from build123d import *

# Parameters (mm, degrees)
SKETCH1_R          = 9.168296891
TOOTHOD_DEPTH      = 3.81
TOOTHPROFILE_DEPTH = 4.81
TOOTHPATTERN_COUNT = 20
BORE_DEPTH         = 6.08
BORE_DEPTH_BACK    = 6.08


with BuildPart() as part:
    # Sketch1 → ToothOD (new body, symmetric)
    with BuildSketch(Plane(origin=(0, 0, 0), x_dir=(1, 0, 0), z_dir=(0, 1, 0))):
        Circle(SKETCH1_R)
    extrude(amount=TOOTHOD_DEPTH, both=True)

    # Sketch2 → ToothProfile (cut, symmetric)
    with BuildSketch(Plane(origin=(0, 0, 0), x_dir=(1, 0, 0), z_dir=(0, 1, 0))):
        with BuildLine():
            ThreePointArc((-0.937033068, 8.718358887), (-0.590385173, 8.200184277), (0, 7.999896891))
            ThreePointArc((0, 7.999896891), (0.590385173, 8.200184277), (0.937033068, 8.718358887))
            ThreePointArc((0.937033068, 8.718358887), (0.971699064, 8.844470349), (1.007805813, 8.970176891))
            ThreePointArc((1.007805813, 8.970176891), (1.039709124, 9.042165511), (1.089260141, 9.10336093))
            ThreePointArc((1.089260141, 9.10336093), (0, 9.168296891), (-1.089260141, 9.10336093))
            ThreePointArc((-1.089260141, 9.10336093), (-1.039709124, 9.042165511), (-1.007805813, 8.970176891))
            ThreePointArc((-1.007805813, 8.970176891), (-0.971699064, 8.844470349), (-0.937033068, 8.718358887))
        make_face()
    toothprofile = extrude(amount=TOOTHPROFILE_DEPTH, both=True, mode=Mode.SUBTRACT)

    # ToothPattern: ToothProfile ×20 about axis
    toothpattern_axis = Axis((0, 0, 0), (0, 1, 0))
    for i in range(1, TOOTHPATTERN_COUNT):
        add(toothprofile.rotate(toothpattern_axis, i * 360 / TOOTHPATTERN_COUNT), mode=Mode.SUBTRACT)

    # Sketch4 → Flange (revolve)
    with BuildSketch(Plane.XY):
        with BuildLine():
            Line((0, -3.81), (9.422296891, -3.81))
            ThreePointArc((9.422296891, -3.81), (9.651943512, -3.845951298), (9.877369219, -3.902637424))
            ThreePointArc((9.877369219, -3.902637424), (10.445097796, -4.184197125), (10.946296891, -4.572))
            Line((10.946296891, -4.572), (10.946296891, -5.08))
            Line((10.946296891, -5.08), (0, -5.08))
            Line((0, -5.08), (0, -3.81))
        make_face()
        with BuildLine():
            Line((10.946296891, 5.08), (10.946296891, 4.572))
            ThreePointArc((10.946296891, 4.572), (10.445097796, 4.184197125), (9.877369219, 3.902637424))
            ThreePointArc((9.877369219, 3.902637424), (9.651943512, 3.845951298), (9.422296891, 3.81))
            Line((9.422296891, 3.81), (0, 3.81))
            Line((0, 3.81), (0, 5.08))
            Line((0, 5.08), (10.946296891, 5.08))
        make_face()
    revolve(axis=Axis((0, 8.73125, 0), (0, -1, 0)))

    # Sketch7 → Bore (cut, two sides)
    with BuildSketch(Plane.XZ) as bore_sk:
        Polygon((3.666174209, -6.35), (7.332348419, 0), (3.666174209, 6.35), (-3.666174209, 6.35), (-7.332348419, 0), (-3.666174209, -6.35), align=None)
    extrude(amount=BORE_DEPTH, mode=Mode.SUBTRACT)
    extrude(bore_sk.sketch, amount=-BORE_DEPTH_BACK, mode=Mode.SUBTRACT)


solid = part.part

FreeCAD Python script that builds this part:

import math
import FreeCAD as App
import Part
import Sketcher
Q = App.Units.Quantity

doc = App.newDocument("Part")
params = doc.addObject("Spreadsheet::Sheet", "Params")
for row, (alias, value) in enumerate([
    ("pad1_length", "0.3 in"),
    ("pocket1_length", "9.62 mm"),
    ("sketch3_height", "0.05 in"),
    ("sketch3_height2", "0.02 in"),
    ("revolution_angle", "360 deg"),
], start=1):
    params.set(f"A{row}", alias)
    params.set(f"B{row}", "=" + value)
    params.setAlias(f"B{row}", alias)

body = doc.addObject("PartDesign::Body", "Body")

# Sketch on XZ plane
sketch1 = body.newObject("Sketcher::SketchObject", "Sketch")
sketch1.AttachmentSupport = (doc.getObject("XZ_Plane"), [""])
sketch1.MapMode = "FlatFace"
sketch1.addGeometry(Part.Circle(App.Vector(0, 0, 0), App.Vector(0, 0, 1), 9), False)
sketch1.addConstraint([
    Sketcher.Constraint("Coincident", 0, 3, -1, 1),
    Sketcher.Constraint("Diameter", 0, 18.336594),
])
pad1 = body.newObject("PartDesign::Pad", "Pad")
pad1.Profile = sketch1
pad1.setExpression("Length", "Params.pad1_length")
pad1.Midplane = True

# Sketch on XZ plane
sketch2 = body.newObject("Sketcher::SketchObject", "Sketch001")
sketch2.AttachmentSupport = (doc.getObject("XZ_Plane"), [""])
sketch2.MapMode = "FlatFace"
sketch2.addGeometry([
    Part.ArcOfCircle(Part.Circle(App.Vector(0, -8.97, 0), App.Vector(0, 0, 1), 0.97), math.radians(90), math.radians(165)),  # 0
    Part.ArcOfCircle(Part.Circle(App.Vector(0, -8.97, 0), App.Vector(0, 0, 1), 0.97), math.radians(15), math.radians(90)),  # 1
    Part.ArcOfCircle(Part.Circle(App.Vector(11.98, -5.75, 0), App.Vector(0, 0, 1), 11.43), math.radians(-164.96), math.radians(-163.65)),  # 2
    Part.ArcOfCircle(Part.Circle(App.Vector(1.3, -8.89, 0), App.Vector(0, 0, 1), 0.3), math.radians(-164), math.radians(-133)),  # 3
    Part.ArcOfCircle(Part.Circle(App.Vector(0, 0, 0), App.Vector(0, 0, 1), 9.17), math.radians(-96.82), math.radians(-83.18)),  # 4
    Part.ArcOfCircle(Part.Circle(App.Vector(-1.3, -8.89, 0), App.Vector(0, 0, 1), 0.3), math.radians(-47), math.radians(-16)),  # 5
    Part.ArcOfCircle(Part.Circle(App.Vector(-11.98, -5.75, 0), App.Vector(0, 0, 1), 11.43), math.radians(-16.35), math.radians(-15.04)),  # 6
], False)
sketch2.addConstraint([
    Sketcher.Constraint("Tangent", 0, 1, 1, 2),
    Sketcher.Constraint("Tangent", 1, 1, 2, 1),
    Sketcher.Constraint("Tangent", 2, 2, 3, 1),
    Sketcher.Constraint("Coincident", 3, 2, 4, 2),
    Sketcher.Constraint("Coincident", 4, 1, 5, 1),
    Sketcher.Constraint("Tangent", 5, 2, 6, 1),
    Sketcher.Constraint("Tangent", 6, 2, 0, 2),
    Sketcher.Constraint("Coincident", 4, 3, -1, 1),
    Sketcher.Constraint("Equal", 0, 1),
    Sketcher.Constraint("Equal", 3, 5),
    Sketcher.Constraint("Equal", 2, 6),
    Sketcher.Constraint("Symmetric", 3, 3, 5, 3, -2),
    Sketcher.Constraint("PointOnObject", 0, 3, -2),
    Sketcher.Constraint("PointOnObject", 0, 1, -2),
    Sketcher.Constraint("Horizontal", 1, 3, 2, 2),
    Sketcher.Constraint("Radius", 0, Q("0.0382 in")),
    Sketcher.Constraint("Radius", 3, Q("0.0118 in")),
    Sketcher.Constraint("DistanceX", -1, 1, 3, 3, Q("0.051 in")),
    Sketcher.Constraint("DistanceY", 3, 2, -1, 1, Q("0.3584 in")),
    Sketcher.Constraint("Radius", 2, 11.430005),
    Sketcher.Constraint("Radius", 4, 9.168297),
])
pocket1 = body.newObject("PartDesign::Pocket", "Pocket")
pocket1.Profile = sketch2
pocket1.setExpression("Length", "Params.pocket1_length")
pocket1.Midplane = True
doc.recompute()

polarpattern = body.newObject("PartDesign::PolarPattern", "PolarPattern")
polarpattern.Originals = [pocket1]
polarpattern.Axis = (doc.getObject("Y_Axis"), [""])
polarpattern.Angle = 360
polarpattern.Occurrences = 20
body.Tip = polarpattern

# Sketch on XY plane
sketch3 = body.newObject("Sketcher::SketchObject", "Sketch002")
sketch3.AttachmentSupport = (doc.getObject("XY_Plane"), [""])
sketch3.MapMode = "FlatFace"
sketch3.addGeometry([
    Part.LineSegment(App.Vector(9.42, -3.81, 0), App.Vector(0, -3.81, 0)),  # 0
    Part.LineSegment(App.Vector(0, -3.81, 0), App.Vector(0, -5.08, 0)),  # 1
    Part.LineSegment(App.Vector(0, -5.08, 0), App.Vector(10.95, -5.08, 0)),  # 2
    Part.LineSegment(App.Vector(10.95, -5.08, 0), App.Vector(10.95, -4.57, 0)),  # 3
    Part.ArcOfCircle(Part.Circle(App.Vector(8.74, -6.9, 0), App.Vector(0, 0, 1), 3.2), math.radians(47), math.radians(69)),  # 4
    Part.ArcOfCircle(Part.Circle(App.Vector(9.14, -6.35, 0), App.Vector(0, 0, 1), 2.55), math.radians(73.28), math.radians(83.71)),  # 5
    Part.LineSegment(App.Vector(10.95, 4.57, 0), App.Vector(10.95, 5.08, 0)),  # 6
    Part.LineSegment(App.Vector(10.95, 5.08, 0), App.Vector(0, 5.08, 0)),  # 7
    Part.LineSegment(App.Vector(0, 5.08, 0), App.Vector(0, 3.81, 0)),  # 8
    Part.LineSegment(App.Vector(0, 3.81, 0), App.Vector(9.42, 3.81, 0)),  # 9
    Part.ArcOfCircle(Part.Circle(App.Vector(9.14, 6.35, 0), App.Vector(0, 0, 1), 2.55), math.radians(-83.71), math.radians(-73.28)),  # 10
    Part.ArcOfCircle(Part.Circle(App.Vector(8.74, 6.9, 0), App.Vector(0, 0, 1), 3.2), math.radians(-69), math.radians(-47)),  # 11
], False)
sketch3.addConstraint([
    Sketcher.Constraint("Coincident", 0, 2, 1, 1),
    Sketcher.Constraint("Coincident", 1, 2, 2, 1),
    Sketcher.Constraint("Coincident", 2, 2, 3, 1),
    Sketcher.Constraint("Coincident", 3, 2, 4, 1),
    Sketcher.Constraint("Coincident", 4, 2, 5, 1),
    Sketcher.Constraint("Coincident", 5, 2, 0, 1),
    Sketcher.Constraint("Coincident", 6, 2, 7, 1),
    Sketcher.Constraint("Coincident", 7, 2, 8, 1),
    Sketcher.Constraint("Coincident", 8, 2, 9, 1),
    Sketcher.Constraint("Coincident", 9, 2, 10, 1),
    Sketcher.Constraint("Coincident", 10, 2, 11, 1),
    Sketcher.Constraint("Coincident", 11, 2, 6, 1),
    Sketcher.Constraint("Horizontal", 0),
    Sketcher.Constraint("Vertical", 1),
    Sketcher.Constraint("Horizontal", 2),
    Sketcher.Constraint("Vertical", 3),
    Sketcher.Constraint("Vertical", 6),
    Sketcher.Constraint("Horizontal", 7),
    Sketcher.Constraint("Vertical", 8),
    Sketcher.Constraint("Horizontal", 9),
    Sketcher.Constraint("Equal", 5, 10),
    Sketcher.Constraint("Equal", 4, 11),
    Sketcher.Constraint("Symmetric", 1, 2, 7, 2, -1, 1),
    Sketcher.Constraint("Symmetric", 5, 3, 10, 3, -1),
    Sketcher.Constraint("Symmetric", 4, 3, 11, 3, -1),
    Sketcher.Constraint("Symmetric", 0, 2, 8, 2, -1),
    Sketcher.Constraint("Vertical", 3, 2, 6, 2),
    Sketcher.Constraint("DistanceY", 1, 2, 1, 1, Q("0.05 in")),
    Sketcher.Constraint("DistanceY", 3, 1, 3, 2, Q("0.02 in")),
    Sketcher.Constraint("DistanceY", 1, 2, -1, 1, Q("0.2 in")),
    Sketcher.Constraint("DistanceX", 5, 2, 3, 2, Q("0.06 in")),
    Sketcher.Constraint("Radius", 4, 3.203644),
    Sketcher.Constraint("Radius", 5, 2.553395),
    Sketcher.Constraint("DistanceX", 0, 2, 0, 1, 9.422297),
    Sketcher.Constraint("DistanceY", 5, 3, -1, 1, 6.348031),
    Sketcher.Constraint("DistanceX", -1, 1, 4, 2, 9.877369),
])
sketch3.setExpression("Constraints[27]", "Params.sketch3_height")
sketch3.setExpression("Constraints[28]", "Params.sketch3_height2")
revolution = body.newObject("PartDesign::Revolution", "Revolution")
revolution.Profile = sketch3
revolution.ReferenceAxis = (sketch3, ["V_Axis"])
revolution.setExpression("Angle", "Params.revolution_angle")

# Sketch on XZ plane
sketch4 = body.newObject("Sketcher::SketchObject", "Sketch003")
sketch4.AttachmentSupport = (doc.getObject("XZ_Plane"), [""])
sketch4.MapMode = "FlatFace"
sketch4.addGeometry([
    Part.LineSegment(App.Vector(4, -6, 0), App.Vector(7, 0, 0)),  # 0
    Part.LineSegment(App.Vector(7, 0, 0), App.Vector(4, 6, 0)),  # 1
    Part.LineSegment(App.Vector(4, 6, 0), App.Vector(-4, 6, 0)),  # 2
    Part.LineSegment(App.Vector(-4, 6, 0), App.Vector(-7, 0, 0)),  # 3
    Part.LineSegment(App.Vector(-7, 0, 0), App.Vector(-4, -6, 0)),  # 4
    Part.LineSegment(App.Vector(-4, -6, 0), App.Vector(4, -6, 0)),  # 5
], False)
sketch4.addConstraint([
    Sketcher.Constraint("Coincident", 0, 2, 1, 1),
    Sketcher.Constraint("Coincident", 1, 2, 2, 1),
    Sketcher.Constraint("Coincident", 2, 2, 3, 1),
    Sketcher.Constraint("Coincident", 3, 2, 4, 1),
    Sketcher.Constraint("Coincident", 4, 2, 5, 1),
    Sketcher.Constraint("Coincident", 5, 2, 0, 1),
    Sketcher.Constraint("Horizontal", 2),
    Sketcher.Constraint("Horizontal", 5),
    Sketcher.Constraint("Symmetric", 0, 2, 3, 2, -1, 1),
    Sketcher.Constraint("Symmetric", 1, 2, 4, 2, -1, 1),
    Sketcher.Constraint("PointOnObject", 0, 2, -1),
    Sketcher.Constraint("Parallel", 0, 3),
    Sketcher.Constraint("Vertical", 2, 2, 4, 2),
    Sketcher.Constraint("Angle", 0, Q("60 deg")),
    Sketcher.Constraint("DistanceY", 4, 2, 2, 2, Q("0.5 in")),
    Sketcher.Constraint("DistanceX", 2, 2, 2, 1, 7.332348),
])
pocket2 = body.newObject("PartDesign::Pocket", "Pocket001")
pocket2.Profile = sketch4
pocket2.Type = "ThroughAll"
pocket2.Midplane = True

doc.recompute()
